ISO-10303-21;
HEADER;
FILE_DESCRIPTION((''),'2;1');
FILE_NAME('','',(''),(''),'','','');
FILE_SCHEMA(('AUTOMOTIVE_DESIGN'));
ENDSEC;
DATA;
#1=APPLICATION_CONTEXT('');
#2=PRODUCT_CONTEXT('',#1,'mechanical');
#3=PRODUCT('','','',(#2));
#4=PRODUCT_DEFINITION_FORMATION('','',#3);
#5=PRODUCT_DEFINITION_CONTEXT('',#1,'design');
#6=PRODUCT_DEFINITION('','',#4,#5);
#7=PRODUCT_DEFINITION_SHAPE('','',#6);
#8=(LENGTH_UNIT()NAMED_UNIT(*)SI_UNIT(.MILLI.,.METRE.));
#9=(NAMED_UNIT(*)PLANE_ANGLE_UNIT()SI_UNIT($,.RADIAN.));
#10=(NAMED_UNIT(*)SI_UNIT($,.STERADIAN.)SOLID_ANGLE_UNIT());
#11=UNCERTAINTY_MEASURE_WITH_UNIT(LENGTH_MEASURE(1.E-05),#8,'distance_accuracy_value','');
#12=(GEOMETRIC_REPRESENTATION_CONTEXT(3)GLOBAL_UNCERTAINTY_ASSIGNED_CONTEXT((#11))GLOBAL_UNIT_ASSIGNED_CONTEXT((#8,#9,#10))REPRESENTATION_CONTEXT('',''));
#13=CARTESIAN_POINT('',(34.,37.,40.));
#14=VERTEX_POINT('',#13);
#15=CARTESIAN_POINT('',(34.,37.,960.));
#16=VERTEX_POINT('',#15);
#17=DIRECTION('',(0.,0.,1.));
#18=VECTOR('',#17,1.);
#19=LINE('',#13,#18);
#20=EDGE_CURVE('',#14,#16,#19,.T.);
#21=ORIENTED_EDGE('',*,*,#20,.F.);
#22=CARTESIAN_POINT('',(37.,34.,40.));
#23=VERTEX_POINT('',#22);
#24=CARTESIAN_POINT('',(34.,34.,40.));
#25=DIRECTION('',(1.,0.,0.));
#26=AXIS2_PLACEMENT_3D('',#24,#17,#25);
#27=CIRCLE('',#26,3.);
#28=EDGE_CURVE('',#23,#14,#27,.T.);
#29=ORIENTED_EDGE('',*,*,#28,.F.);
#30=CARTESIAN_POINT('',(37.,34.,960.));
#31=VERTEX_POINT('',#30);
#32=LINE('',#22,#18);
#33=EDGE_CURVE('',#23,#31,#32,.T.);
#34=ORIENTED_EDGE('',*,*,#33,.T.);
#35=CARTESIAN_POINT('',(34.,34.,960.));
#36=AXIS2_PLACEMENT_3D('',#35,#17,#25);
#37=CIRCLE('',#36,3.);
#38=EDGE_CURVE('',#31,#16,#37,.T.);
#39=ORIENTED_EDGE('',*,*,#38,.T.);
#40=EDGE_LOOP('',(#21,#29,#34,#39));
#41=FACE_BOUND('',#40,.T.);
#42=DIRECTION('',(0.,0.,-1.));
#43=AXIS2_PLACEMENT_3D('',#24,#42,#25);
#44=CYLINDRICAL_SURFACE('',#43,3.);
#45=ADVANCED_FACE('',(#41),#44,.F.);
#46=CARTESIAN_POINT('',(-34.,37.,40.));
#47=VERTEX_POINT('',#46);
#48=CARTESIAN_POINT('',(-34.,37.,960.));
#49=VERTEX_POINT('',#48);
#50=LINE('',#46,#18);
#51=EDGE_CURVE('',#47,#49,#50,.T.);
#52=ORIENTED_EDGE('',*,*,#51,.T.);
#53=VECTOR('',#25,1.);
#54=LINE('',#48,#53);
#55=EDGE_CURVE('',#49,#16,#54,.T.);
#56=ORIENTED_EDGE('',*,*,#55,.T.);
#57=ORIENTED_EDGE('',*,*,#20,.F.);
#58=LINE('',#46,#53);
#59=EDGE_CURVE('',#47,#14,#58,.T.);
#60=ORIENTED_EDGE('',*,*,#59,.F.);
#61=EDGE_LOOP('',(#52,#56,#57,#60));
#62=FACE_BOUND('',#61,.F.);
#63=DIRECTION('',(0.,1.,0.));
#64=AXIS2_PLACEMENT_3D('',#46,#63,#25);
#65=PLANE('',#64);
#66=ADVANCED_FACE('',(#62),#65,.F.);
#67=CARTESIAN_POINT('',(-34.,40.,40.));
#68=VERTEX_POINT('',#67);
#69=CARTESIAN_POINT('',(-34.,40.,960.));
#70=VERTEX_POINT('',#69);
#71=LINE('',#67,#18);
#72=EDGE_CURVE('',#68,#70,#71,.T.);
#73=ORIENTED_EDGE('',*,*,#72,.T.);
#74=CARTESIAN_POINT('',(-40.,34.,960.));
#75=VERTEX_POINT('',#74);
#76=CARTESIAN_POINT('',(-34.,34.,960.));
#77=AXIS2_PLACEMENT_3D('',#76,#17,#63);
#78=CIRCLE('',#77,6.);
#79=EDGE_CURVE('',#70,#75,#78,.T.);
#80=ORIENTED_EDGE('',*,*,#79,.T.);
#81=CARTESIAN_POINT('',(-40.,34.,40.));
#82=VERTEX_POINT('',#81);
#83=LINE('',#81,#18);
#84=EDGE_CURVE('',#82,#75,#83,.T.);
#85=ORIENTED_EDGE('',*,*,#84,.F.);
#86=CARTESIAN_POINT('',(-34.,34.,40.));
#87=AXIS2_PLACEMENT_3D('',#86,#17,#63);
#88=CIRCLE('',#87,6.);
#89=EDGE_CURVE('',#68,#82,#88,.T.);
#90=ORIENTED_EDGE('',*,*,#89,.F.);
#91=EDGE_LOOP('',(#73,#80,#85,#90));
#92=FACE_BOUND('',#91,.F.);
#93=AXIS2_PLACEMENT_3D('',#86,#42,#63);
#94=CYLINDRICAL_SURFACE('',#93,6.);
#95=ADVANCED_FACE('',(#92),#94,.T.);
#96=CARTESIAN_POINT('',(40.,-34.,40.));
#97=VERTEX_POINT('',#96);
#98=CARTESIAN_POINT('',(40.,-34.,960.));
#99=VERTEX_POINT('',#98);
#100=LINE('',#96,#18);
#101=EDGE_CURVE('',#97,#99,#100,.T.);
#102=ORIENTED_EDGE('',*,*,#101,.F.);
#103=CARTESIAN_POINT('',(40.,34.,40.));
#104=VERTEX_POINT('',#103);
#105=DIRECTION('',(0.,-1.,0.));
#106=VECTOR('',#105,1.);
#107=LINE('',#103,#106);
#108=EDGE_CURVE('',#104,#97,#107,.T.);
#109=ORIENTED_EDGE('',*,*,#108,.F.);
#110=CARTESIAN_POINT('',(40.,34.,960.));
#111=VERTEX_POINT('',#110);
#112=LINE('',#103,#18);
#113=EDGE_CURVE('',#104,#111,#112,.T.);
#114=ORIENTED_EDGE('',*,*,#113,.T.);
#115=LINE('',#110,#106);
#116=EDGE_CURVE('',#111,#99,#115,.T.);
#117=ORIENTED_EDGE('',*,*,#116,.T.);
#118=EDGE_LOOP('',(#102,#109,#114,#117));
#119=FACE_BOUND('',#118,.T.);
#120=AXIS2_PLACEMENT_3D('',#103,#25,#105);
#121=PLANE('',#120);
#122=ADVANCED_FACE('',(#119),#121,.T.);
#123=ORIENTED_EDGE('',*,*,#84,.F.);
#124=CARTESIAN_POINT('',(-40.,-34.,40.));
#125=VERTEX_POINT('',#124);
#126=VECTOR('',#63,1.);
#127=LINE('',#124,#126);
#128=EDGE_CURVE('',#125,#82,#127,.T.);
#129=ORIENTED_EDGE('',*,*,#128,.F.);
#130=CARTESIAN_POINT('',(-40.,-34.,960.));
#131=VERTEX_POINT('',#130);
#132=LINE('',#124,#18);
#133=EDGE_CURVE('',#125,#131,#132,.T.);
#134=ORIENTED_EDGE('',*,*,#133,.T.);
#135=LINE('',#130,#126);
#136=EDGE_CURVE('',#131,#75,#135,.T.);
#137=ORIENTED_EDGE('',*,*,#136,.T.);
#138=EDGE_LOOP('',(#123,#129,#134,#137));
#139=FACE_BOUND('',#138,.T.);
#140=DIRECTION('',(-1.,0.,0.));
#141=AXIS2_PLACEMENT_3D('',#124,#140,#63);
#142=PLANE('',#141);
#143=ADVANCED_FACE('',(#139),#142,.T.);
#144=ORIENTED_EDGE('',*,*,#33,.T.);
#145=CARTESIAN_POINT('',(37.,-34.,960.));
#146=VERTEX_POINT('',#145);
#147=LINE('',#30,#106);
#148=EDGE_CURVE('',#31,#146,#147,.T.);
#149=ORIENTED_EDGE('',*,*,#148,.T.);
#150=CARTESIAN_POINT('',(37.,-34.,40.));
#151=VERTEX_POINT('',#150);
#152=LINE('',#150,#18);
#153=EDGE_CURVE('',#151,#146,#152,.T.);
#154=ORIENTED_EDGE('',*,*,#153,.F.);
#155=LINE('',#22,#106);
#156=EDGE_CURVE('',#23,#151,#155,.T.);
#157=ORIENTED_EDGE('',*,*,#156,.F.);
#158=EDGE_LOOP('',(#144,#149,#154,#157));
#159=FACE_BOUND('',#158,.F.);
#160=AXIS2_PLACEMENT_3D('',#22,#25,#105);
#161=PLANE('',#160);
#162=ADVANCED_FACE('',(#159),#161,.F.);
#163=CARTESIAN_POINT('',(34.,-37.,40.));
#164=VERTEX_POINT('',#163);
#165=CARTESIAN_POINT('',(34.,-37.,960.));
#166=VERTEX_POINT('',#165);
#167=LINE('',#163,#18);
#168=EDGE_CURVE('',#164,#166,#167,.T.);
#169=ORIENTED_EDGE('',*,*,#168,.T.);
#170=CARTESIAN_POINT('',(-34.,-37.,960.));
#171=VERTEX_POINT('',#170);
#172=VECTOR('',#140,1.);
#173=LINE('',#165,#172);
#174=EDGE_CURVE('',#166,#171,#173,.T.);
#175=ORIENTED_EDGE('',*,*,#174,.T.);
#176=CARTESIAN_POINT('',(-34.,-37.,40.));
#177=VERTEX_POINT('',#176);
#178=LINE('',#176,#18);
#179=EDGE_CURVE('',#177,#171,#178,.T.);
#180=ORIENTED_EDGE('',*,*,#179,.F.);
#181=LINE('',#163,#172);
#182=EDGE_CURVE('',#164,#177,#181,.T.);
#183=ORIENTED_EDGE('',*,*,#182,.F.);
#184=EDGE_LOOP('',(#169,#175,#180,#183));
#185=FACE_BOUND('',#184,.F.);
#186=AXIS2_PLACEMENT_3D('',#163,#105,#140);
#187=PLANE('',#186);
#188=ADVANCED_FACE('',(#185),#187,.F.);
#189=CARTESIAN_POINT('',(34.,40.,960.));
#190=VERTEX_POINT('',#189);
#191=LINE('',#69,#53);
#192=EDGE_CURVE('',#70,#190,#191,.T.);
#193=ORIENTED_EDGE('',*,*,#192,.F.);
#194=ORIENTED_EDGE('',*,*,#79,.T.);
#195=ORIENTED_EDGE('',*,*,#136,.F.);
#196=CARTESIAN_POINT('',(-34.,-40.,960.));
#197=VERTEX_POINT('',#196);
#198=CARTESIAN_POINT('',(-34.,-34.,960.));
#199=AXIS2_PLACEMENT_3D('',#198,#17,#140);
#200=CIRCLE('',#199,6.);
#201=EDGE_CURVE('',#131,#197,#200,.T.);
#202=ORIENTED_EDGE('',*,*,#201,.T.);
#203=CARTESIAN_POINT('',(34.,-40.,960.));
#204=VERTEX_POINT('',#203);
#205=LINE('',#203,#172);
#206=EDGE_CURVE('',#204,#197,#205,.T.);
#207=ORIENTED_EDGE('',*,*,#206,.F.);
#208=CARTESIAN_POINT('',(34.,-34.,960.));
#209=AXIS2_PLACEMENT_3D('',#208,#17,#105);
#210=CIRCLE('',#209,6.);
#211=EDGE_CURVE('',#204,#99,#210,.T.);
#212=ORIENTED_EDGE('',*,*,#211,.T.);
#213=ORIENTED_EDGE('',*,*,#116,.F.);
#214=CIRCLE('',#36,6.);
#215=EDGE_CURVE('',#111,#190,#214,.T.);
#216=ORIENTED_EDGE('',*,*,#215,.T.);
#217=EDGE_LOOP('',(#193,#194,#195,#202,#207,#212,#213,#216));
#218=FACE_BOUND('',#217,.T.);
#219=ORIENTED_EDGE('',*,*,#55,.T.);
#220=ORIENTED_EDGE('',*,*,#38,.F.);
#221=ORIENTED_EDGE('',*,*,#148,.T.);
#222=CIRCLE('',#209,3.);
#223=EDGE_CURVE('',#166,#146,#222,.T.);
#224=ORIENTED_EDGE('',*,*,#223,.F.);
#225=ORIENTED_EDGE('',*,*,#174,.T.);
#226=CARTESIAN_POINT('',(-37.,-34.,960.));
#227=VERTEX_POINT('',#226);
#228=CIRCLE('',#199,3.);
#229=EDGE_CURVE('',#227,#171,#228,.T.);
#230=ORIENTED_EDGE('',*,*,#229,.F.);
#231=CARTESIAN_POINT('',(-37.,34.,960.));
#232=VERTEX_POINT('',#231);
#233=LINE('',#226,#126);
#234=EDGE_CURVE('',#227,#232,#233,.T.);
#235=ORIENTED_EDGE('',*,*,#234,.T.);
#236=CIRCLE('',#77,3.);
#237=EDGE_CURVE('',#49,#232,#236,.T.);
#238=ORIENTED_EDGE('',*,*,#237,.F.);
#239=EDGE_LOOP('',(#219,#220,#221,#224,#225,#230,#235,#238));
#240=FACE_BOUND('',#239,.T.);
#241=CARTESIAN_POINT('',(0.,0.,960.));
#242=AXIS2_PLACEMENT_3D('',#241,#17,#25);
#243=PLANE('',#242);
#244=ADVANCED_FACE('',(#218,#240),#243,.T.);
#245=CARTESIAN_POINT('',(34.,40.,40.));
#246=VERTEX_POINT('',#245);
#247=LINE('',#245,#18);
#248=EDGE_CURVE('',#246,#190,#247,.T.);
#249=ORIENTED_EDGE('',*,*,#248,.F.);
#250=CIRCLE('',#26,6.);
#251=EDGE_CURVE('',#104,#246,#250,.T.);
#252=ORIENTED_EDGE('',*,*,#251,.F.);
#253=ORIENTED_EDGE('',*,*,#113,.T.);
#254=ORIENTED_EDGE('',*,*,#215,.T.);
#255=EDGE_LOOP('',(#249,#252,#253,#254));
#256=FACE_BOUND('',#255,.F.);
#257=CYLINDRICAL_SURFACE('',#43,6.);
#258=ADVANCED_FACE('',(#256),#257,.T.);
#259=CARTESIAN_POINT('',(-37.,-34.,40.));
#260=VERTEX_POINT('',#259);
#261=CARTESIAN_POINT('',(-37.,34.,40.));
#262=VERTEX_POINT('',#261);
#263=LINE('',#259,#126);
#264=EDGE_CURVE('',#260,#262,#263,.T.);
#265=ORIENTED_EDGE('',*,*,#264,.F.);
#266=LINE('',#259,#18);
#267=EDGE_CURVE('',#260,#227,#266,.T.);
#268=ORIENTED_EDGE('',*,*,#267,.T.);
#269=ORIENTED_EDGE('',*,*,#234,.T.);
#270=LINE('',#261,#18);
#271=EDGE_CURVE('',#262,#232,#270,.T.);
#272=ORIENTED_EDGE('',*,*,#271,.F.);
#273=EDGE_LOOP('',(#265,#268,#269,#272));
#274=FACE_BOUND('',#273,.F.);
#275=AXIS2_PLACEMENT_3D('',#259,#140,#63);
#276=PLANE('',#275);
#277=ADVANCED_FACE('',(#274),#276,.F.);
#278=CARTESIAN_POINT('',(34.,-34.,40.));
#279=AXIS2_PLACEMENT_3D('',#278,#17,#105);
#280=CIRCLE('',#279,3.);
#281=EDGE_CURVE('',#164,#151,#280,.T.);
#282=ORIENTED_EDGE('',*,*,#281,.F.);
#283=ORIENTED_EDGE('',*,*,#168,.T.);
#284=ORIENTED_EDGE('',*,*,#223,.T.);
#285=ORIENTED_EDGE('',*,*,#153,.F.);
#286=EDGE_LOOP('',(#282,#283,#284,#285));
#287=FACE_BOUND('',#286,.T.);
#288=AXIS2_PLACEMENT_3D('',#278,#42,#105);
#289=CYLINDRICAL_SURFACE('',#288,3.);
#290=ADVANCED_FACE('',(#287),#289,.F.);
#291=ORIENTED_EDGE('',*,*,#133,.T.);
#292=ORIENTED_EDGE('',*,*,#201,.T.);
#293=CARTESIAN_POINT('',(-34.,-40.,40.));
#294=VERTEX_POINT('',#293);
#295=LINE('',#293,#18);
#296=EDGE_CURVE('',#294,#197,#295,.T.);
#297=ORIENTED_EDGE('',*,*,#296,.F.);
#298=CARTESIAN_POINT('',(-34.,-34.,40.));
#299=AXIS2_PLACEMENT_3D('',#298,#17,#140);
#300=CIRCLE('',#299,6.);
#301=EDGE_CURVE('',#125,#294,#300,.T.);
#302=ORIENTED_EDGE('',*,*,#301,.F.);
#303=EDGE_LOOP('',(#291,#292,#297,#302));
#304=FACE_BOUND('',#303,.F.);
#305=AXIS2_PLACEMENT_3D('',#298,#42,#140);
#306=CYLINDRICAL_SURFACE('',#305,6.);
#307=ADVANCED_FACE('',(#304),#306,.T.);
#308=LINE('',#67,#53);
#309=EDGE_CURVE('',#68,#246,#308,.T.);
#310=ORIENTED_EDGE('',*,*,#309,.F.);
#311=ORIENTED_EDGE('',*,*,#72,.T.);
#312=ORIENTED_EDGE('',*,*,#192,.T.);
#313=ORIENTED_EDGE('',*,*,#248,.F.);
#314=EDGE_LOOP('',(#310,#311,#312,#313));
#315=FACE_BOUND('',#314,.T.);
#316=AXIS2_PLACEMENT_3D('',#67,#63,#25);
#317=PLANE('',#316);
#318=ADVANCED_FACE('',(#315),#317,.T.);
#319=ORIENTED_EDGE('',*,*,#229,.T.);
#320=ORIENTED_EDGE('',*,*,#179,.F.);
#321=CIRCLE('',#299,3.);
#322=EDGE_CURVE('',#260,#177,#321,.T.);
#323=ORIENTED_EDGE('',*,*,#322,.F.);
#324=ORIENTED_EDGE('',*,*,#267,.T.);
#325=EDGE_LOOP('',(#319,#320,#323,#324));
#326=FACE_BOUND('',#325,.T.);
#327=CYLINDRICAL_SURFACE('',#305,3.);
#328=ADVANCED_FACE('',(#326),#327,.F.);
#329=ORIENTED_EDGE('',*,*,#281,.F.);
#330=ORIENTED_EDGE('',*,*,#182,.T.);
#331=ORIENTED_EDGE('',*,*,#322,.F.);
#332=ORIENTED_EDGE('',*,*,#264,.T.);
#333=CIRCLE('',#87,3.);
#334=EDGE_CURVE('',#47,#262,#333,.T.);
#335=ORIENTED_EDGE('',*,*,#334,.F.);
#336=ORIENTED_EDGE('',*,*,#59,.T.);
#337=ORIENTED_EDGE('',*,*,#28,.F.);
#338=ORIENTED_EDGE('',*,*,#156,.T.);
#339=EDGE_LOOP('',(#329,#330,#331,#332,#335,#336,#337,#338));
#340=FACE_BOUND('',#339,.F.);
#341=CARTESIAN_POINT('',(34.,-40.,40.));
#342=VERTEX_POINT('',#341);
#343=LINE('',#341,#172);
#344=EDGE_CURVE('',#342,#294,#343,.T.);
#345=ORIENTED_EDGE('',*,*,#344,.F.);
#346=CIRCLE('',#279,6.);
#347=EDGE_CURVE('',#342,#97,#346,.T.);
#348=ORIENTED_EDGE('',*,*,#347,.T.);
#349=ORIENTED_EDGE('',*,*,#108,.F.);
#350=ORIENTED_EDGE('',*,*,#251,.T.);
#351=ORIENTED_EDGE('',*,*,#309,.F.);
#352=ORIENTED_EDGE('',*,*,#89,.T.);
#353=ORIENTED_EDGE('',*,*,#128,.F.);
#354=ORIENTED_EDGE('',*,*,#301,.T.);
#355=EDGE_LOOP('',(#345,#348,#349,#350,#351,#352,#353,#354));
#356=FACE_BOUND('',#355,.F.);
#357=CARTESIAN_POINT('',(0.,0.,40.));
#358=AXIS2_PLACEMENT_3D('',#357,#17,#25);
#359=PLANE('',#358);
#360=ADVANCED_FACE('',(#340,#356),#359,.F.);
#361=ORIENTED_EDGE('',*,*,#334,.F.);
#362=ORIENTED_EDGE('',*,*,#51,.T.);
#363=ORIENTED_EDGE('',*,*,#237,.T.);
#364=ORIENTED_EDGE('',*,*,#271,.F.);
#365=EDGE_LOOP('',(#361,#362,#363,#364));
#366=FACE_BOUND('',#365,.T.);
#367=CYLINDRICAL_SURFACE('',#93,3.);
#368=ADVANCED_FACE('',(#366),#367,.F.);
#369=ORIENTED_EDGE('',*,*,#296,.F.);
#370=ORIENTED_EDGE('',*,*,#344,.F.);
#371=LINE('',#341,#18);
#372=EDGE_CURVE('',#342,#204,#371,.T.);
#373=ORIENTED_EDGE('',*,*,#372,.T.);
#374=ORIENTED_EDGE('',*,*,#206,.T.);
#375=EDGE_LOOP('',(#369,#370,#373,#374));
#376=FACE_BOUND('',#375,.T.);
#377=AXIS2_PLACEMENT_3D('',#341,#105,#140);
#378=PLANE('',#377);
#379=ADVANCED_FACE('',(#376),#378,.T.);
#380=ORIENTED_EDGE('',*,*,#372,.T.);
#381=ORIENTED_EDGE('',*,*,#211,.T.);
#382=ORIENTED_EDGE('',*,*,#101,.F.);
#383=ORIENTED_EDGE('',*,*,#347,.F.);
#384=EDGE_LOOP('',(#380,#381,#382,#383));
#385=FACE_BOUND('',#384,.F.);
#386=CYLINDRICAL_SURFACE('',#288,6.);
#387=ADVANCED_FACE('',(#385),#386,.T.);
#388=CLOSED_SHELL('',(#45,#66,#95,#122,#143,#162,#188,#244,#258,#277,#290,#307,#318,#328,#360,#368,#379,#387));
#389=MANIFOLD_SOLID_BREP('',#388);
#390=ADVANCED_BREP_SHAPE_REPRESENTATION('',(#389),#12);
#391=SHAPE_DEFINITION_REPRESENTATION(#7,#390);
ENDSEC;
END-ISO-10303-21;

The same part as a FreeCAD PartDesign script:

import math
import FreeCAD as App
import Part
import Sketcher

V = App.Vector
Q = App.Units.Quantity

doc = App.newDocument("Part")
body = doc.addObject("PartDesign::Body", "Body")

# Sketch on XY plane
sketch1 = body.newObject("Sketcher::SketchObject", "Sketch")
sketch1.AttachmentSupport = (doc.getObject("XY_Plane"), [""])
sketch1.MapMode = "FlatFace"
sketch1.AttachmentOffset = App.Placement(V(0, 0, 40), App.Rotation())
sketch1.addGeometry([
    Part.LineSegment(V(-40, 34, 0), V(-40, -34, 0)),  # 0
    Part.ArcOfCircle(Part.Circle(V(-34, -34, 0), V(0, 0, 1), 6), math.radians(180), math.radians(270)),  # 1
    Part.LineSegment(V(-34, -40, 0), V(34, -40, 0)),  # 2
    Part.ArcOfCircle(Part.Circle(V(34, -34, 0), V(0, 0, 1), 6), math.radians(-90), math.radians(0)),  # 3
    Part.LineSegment(V(40, -34, 0), V(40, 34, 0)),  # 4
    Part.ArcOfCircle(Part.Circle(V(34, 34, 0), V(0, 0, 1), 6), math.radians(0), math.radians(90)),  # 5
    Part.LineSegment(V(34, 40, 0), V(-34, 40, 0)),  # 6
    Part.ArcOfCircle(Part.Circle(V(-34, 34, 0), V(0, 0, 1), 6), math.radians(90), math.radians(180)),  # 7
    Part.ArcOfCircle(Part.Circle(V(-34, 34, 0), V(0, 0, 1), 3), math.radians(90), math.radians(180)),  # 8
    Part.LineSegment(V(-34, 37, 0), V(34, 37, 0)),  # 9
    Part.ArcOfCircle(Part.Circle(V(34, 34, 0), V(0, 0, 1), 3), math.radians(0), math.radians(90)),  # 10
    Part.LineSegment(V(37, 34, 0), V(37, -34, 0)),  # 11
    Part.ArcOfCircle(Part.Circle(V(34, -34, 0), V(0, 0, 1), 3), math.radians(-90), math.radians(0)),  # 12
    Part.LineSegment(V(34, -37, 0), V(-34, -37, 0)),  # 13
    Part.ArcOfCircle(Part.Circle(V(-34, -34, 0), V(0, 0, 1), 3), math.radians(180), math.radians(270)),  # 14
    Part.LineSegment(V(-37, -34, 0), V(-37, 34, 0)),  # 15
], False)
sketch1.addConstraint([
    Sketcher.Constraint("Tangent", 0, 2, 1, 1),
    Sketcher.Constraint("Tangent", 1, 2, 2, 1),
    Sketcher.Constraint("Tangent", 2, 2, 3, 1),
    Sketcher.Constraint("Tangent", 3, 2, 4, 1),
    Sketcher.Constraint("Tangent", 4, 2, 5, 1),
    Sketcher.Constraint("Tangent", 5, 2, 6, 1),
    Sketcher.Constraint("Tangent", 6, 2, 7, 1),
    Sketcher.Constraint("Tangent", 7, 2, 0, 1),
    Sketcher.Constraint("Tangent", 8, 1, 9, 1),
    Sketcher.Constraint("Tangent", 9, 2, 10, 2),
    Sketcher.Constraint("Tangent", 10, 1, 11, 1),
    Sketcher.Constraint("Tangent", 11, 2, 12, 2),
    Sketcher.Constraint("Tangent", 12, 1, 13, 1),
    Sketcher.Constraint("Tangent", 13, 2, 14, 2),
    Sketcher.Constraint("Tangent", 14, 1, 15, 1),
    Sketcher.Constraint("Tangent", 15, 2, 8, 2),
    Sketcher.Constraint("Vertical", 0),
    Sketcher.Constraint("Horizontal", 2),
    Sketcher.Constraint("Vertical", 4),
    Sketcher.Constraint("Horizontal", 6),
    Sketcher.Constraint("Horizontal", 9),
    Sketcher.Constraint("Vertical", 11),
    Sketcher.Constraint("Horizontal", 13),
    Sketcher.Constraint("Vertical", 15),
    Sketcher.Constraint("Coincident", 8, 3, 7, 3),
    Sketcher.Constraint("Coincident", 10, 3, 5, 3),
    Sketcher.Constraint("Coincident", 12, 3, 3, 3),
    Sketcher.Constraint("Equal", 1, 3),
    Sketcher.Constraint("Equal", 3, 5),
    Sketcher.Constraint("Equal", 5, 7),
    Sketcher.Constraint("Equal", 12, 14),
    Sketcher.Constraint("Symmetric", 1, 3, 5, 3, -1, 1),
    Sketcher.Constraint("Equal", 13, 0),
    Sketcher.Constraint("Radius", 1, Q("6 mm")),
    Sketcher.Constraint("Radius", 8, Q("3 mm")),
    Sketcher.Constraint("DistanceX", 0, 2, -1, 1, Q("40 mm")),
])
pad1 = body.newObject("PartDesign::Pad", "Pad")
pad1.Profile = sketch1
pad1.Length = 920

doc.recompute()
